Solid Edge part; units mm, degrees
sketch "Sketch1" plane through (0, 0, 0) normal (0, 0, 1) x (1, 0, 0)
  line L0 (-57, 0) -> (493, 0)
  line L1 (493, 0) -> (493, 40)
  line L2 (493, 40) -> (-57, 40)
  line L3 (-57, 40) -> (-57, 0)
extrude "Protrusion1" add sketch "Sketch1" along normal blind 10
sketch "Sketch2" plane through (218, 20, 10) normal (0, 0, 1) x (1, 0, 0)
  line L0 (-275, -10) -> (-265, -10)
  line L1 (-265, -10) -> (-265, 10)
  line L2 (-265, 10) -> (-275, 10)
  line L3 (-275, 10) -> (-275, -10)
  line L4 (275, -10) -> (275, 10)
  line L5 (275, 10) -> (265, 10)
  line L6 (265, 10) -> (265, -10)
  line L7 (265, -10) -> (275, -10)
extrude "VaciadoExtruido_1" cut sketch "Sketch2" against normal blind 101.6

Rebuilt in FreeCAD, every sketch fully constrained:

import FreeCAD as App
import Part
import Sketcher

V = App.Vector


def add_polygon(sketch, points):
    """Adds a closed chain of lines whose ends are joined by coincident constraints."""
    first, n = sketch.GeometryCount, len(points)
    for a, b in zip(points, points[1:] + points[:1]):
        sketch.addGeometry(Part.LineSegment(App.Vector(*a, 0), App.Vector(*b, 0)), False)
    for i in range(n):
        sketch.addConstraint(Sketcher.Constraint("Coincident", first + i, 2, first + (i + 1) % n, 1))

doc = App.newDocument("Part")
params = doc.addObject("Spreadsheet::Sheet", "Params")
for row, (alias, value) in enumerate([
    ("sketch1_width", "550 mm"),
    ("sketch1_height", "40 mm"),
    ("pad1_length", "10 mm"),
    ("sketch2_width", "10 mm"),
    ("sketch2_height", "20 mm"),
    ("pocket1_length", "101.6 mm"),
], start=1):
    params.set(f"A{row}", alias)
    params.set(f"B{row}", "=" + value)
    params.setAlias(f"B{row}", alias)

body = doc.addObject("PartDesign::Body", "Body")

# Sketch on XY plane
sketch1 = body.newObject("Sketcher::SketchObject", "Sketch")
sketch1.AttachmentSupport = (doc.getObject("XY_Plane"), [""])
sketch1.MapMode = "FlatFace"
add_polygon(sketch1, [(-57, 40), (-57, 0), (493, 0), (493, 40)])  # lines 0-3
sketch1.addConstraint(Sketcher.Constraint("Vertical", 0))
sketch1.addConstraint(Sketcher.Constraint("Horizontal", 1))
sketch1.addConstraint(Sketcher.Constraint("Vertical", 2))
sketch1.addConstraint(Sketcher.Constraint("Horizontal", 3))
sketch1.addConstraint(Sketcher.Constraint("PointOnObject", 0, 2, -1))
sketch1.addConstraint(Sketcher.Constraint("DistanceX", 1, 1, 1, 2, 550.0))
sketch1.addConstraint(Sketcher.Constraint("DistanceY", 0, 2, 0, 1, 40.0))
sketch1.addConstraint(Sketcher.Constraint("DistanceX", 0, 2, -1, 1, 57.0))
sketch1.setExpression("Constraints[9]", "Params.sketch1_width")
sketch1.setExpression("Constraints[10]", "Params.sketch1_height")
pad1 = body.newObject("PartDesign::Pad", "Pad")
pad1.Profile = sketch1
pad1.setExpression("Length", "Params.pad1_length")

# Sketch on XY plane
sketch2 = body.newObject("Sketcher::SketchObject", "Sketch001")
sketch2.AttachmentSupport = (doc.getObject("XY_Plane"), [""])
sketch2.MapMode = "FlatFace"
sketch2.AttachmentOffset = App.Placement(V(0, 0, 10), App.Rotation())
add_polygon(sketch2, [(-57, 30), (-57, 10), (-47, 10), (-47, 30)])  # lines 0-3
add_polygon(sketch2, [(483, 10), (493, 10), (493, 30), (483, 30)])  # lines 4-7
sketch2.addConstraint(Sketcher.Constraint("Vertical", 0))
sketch2.addConstraint(Sketcher.Constraint("Horizontal", 1))
sketch2.addConstraint(Sketcher.Constraint("Vertical", 2))
sketch2.addConstraint(Sketcher.Constraint("Horizontal", 3))
sketch2.addConstraint(Sketcher.Constraint("Horizontal", 4))
sketch2.addConstraint(Sketcher.Constraint("Vertical", 5))
sketch2.addConstraint(Sketcher.Constraint("Horizontal", 6))
sketch2.addConstraint(Sketcher.Constraint("Vertical", 7))
sketch2.addConstraint(Sketcher.Constraint("Horizontal", 1, 2, 4, 2))
sketch2.addConstraint(Sketcher.Constraint("Horizontal", 3, 2, 5, 2))
sketch2.addConstraint(Sketcher.Constraint("Equal", 3, 4))
sketch2.addConstraint(Sketcher.Constraint("DistanceX", 1, 1, 1, 2, 10.0))
sketch2.addConstraint(Sketcher.Constraint("DistanceY", 0, 2, 0, 1, 20.0))
sketch2.addConstraint(Sketcher.Constraint("DistanceX", 0, 2, -1, 1, 57.0))
sketch2.addConstraint(Sketcher.Constraint("DistanceY", -1, 1, 0, 2, 10.0))
sketch2.addConstraint(Sketcher.Constraint("DistanceX", -1, 1, 4, 2, 493.0))
sketch2.setExpression("Constraints[19]", "Params.sketch2_width")
sketch2.setExpression("Constraints[20]", "Params.sketch2_height")
pocket1 = body.newObject("PartDesign::Pocket", "Pocket")
pocket1.Profile = sketch2
pocket1.setExpression("Length", "Params.pocket1_length")

doc.recompute()
